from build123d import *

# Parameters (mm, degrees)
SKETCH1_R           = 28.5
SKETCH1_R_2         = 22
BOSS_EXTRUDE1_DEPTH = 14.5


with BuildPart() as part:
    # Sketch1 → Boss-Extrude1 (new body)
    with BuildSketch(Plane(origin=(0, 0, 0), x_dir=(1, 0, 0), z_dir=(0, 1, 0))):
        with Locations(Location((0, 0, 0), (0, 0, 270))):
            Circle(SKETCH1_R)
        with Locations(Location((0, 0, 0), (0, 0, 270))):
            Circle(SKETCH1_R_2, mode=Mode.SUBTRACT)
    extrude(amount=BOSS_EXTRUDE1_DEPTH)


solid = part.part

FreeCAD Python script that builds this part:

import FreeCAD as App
import Part
import Sketcher
from FreeCAD import Vector

doc = App.newDocument("Part")
body = doc.addObject("PartDesign::Body", "Body")

# Sketch on XZ plane
sketch1 = body.newObject("Sketcher::SketchObject", "Sketch")
sketch1.AttachmentSupport = (doc.getObject("XZ_Plane"), [""])
sketch1.MapMode = "FlatFace"
sketch1.addGeometry([
    Part.Circle(Vector(0, 0, 0), Vector(0, 0, 1), 28.5),
    Part.Circle(Vector(0, 0, 0), Vector(0, 0, 1), 22),
], False)
sketch1.addConstraint([
    Sketcher.Constraint("Coincident", 0, 3, -1, 1),
    Sketcher.Constraint("Coincident", 1, 3, -1, 1),
    Sketcher.Constraint("Diameter", 0, 57.0),
    Sketcher.Constraint("Diameter", 1, 44.0),
])
pad1 = body.newObject("PartDesign::Pad", "Pad")
pad1.Profile = sketch1
pad1.Length = 14.5
pad1.Reversed = True

doc.recompute()
